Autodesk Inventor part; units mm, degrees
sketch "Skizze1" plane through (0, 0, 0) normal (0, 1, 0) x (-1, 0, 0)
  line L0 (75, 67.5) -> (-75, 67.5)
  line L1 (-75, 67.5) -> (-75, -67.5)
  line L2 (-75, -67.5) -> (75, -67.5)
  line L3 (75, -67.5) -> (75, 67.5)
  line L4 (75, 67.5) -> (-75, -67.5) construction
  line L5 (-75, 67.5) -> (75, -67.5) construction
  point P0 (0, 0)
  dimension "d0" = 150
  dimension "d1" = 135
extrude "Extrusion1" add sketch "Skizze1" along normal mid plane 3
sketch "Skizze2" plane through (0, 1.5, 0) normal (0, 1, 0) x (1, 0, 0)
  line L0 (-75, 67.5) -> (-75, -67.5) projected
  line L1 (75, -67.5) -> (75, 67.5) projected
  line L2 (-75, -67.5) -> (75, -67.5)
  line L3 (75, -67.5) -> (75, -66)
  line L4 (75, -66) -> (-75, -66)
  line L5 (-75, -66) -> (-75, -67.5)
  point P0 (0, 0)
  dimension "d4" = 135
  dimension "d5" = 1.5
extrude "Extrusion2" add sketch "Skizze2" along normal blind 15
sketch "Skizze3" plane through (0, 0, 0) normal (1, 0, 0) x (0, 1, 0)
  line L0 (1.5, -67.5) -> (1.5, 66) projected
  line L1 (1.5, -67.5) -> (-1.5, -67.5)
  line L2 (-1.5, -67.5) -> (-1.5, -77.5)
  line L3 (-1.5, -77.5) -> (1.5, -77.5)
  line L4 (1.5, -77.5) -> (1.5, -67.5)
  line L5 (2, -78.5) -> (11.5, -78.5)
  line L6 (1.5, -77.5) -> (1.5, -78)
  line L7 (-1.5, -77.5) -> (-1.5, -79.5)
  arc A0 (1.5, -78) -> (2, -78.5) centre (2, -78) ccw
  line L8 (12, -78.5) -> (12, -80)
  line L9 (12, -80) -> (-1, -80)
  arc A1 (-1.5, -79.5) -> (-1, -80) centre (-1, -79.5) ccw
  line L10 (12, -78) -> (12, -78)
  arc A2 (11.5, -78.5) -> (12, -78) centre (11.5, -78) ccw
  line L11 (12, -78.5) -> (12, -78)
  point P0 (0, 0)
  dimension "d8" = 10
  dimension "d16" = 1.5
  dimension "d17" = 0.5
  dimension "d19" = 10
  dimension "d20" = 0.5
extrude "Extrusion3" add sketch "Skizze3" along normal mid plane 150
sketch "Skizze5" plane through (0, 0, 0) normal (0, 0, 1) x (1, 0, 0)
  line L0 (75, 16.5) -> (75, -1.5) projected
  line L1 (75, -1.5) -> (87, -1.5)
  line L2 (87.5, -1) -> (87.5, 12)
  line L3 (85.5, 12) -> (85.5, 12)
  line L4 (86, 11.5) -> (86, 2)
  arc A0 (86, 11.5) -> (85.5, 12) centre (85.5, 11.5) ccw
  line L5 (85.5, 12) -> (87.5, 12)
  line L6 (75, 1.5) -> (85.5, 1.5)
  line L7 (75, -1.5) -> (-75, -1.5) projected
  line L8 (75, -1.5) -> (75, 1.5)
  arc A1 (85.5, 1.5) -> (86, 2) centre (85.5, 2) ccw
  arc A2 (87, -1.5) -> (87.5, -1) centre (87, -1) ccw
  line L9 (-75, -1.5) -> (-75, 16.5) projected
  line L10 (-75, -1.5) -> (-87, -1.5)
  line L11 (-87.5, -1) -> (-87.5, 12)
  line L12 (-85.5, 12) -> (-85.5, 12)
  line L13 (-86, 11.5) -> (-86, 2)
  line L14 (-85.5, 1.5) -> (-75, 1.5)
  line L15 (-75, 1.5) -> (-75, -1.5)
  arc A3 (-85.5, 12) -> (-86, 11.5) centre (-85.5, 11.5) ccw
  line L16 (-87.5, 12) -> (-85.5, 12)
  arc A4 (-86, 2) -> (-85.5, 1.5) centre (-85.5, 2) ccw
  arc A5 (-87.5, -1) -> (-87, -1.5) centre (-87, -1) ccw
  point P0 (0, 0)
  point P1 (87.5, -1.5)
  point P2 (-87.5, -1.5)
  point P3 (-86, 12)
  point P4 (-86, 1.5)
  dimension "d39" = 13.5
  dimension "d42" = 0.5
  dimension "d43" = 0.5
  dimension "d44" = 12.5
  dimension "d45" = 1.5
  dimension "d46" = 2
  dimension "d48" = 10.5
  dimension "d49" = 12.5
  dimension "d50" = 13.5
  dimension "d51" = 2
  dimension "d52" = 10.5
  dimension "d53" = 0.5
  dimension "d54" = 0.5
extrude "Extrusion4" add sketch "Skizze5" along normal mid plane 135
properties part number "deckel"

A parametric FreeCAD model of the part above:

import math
import FreeCAD as App
import Part
import Sketcher
from FreeCAD import Vector


def add_polygon(sketch, points):
    """Adds a closed chain of lines whose ends are joined by coincident constraints."""
    first, n = sketch.GeometryCount, len(points)
    for a, b in zip(points, points[1:] + points[:1]):
        sketch.addGeometry(Part.LineSegment(App.Vector(*a, 0), App.Vector(*b, 0)), False)
    for i in range(n):
        sketch.addConstraint(Sketcher.Constraint("Coincident", first + i, 2, first + (i + 1) % n, 1))

doc = App.newDocument("Part")
body = doc.addObject("PartDesign::Body", "Body")

# Sketch on XZ plane
sketch1 = body.newObject("Sketcher::SketchObject", "Sketch")
sketch1.AttachmentSupport = (doc.getObject("XZ_Plane"), [""])
sketch1.MapMode = "FlatFace"
add_polygon(sketch1, [(-75, -68), (-75, 68), (75, 68), (75, -68)])  # lines 0-3
sketch1.addConstraint([
    Sketcher.Constraint("Vertical", 0),
    Sketcher.Constraint("Horizontal", 1),
    Sketcher.Constraint("Vertical", 2),
    Sketcher.Constraint("Horizontal", 3),
    Sketcher.Constraint("Symmetric", 0, 2, 2, 2, -1, 1),
    Sketcher.Constraint("DistanceX", 1, 1, 1, 2, 150.0),
    Sketcher.Constraint("DistanceY", 0, 1, 0, 2, 135.0),
])
pad1 = body.newObject("PartDesign::Pad", "Pad")
pad1.Profile = sketch1
pad1.Length = 3
pad1.Midplane = True

# Sketch on XZ plane
sketch2 = body.newObject("Sketcher::SketchObject", "Sketch001")
sketch2.AttachmentSupport = (doc.getObject("XZ_Plane"), [""])
sketch2.MapMode = "FlatFace"
sketch2.AttachmentOffset = App.Placement(Vector(0, 0, -1.5), App.Rotation())
add_polygon(sketch2, [(75, 66), (-75, 66), (-75, 67.5), (75, 67.5)])  # lines 0-3
sketch2.addConstraint([
    Sketcher.Constraint("Horizontal", 0),
    Sketcher.Constraint("Vertical", 1),
    Sketcher.Constraint("Horizontal", 2),
    Sketcher.Constraint("Vertical", 3),
    Sketcher.Constraint("DistanceY", 1, 1, 1, 2, 1.5),
    Sketcher.Constraint("DistanceX", 0, 2, 0, 1, 150.0),
    Sketcher.Constraint("DistanceX", 0, 2, -1, 1, 75.0),
    Sketcher.Constraint("DistanceY", -1, 1, 0, 2, 66.0),
])
pad2 = body.newObject("PartDesign::Pad", "Pad001")
pad2.Profile = sketch2
pad2.Length = 15
pad2.Reversed = True

# Sketch on YZ plane
sketch3 = body.newObject("Sketcher::SketchObject", "Sketch002")
sketch3.AttachmentSupport = (doc.getObject("YZ_Plane"), [""])
sketch3.MapMode = "FlatFace"
sketch3.addGeometry([
    Part.LineSegment(Vector(1.5, -67.5, 0), Vector(-1.5, -67.5, 0)),  # 0
    Part.LineSegment(Vector(-1.5, -67.5, 0), Vector(-1.5, -79.5, 0)),  # 1
    Part.ArcOfCircle(Part.Circle(Vector(-1, -79.5, 0), Vector(0, 0, 1), 0.5), math.radians(180), math.radians(270)),  # 2
    Part.LineSegment(Vector(-1, -80, 0), Vector(12, -80, 0)),  # 3
    Part.LineSegment(Vector(12, -80, 0), Vector(12, -78, 0)),  # 4
    Part.ArcOfCircle(Part.Circle(Vector(11.5, -78, 0), Vector(0, 0, 1), 0.5), math.radians(-90), math.radians(0)),  # 5
    Part.LineSegment(Vector(11.5, -78.5, 0), Vector(2, -78.5, 0)),  # 6
    Part.ArcOfCircle(Part.Circle(Vector(2, -78, 0), Vector(0, 0, 1), 0.5), math.radians(180), math.radians(270)),  # 7
    Part.LineSegment(Vector(1.5, -78, 0), Vector(1.5, -67.5, 0)),  # 8
], False)
sketch3.addConstraint([
    Sketcher.Constraint("Coincident", 0, 2, 1, 1),
    Sketcher.Constraint("Tangent", 1, 2, 2, 1),
    Sketcher.Constraint("Tangent", 2, 2, 3, 1),
    Sketcher.Constraint("Coincident", 3, 2, 4, 1),
    Sketcher.Constraint("Tangent", 4, 2, 5, 2),
    Sketcher.Constraint("Tangent", 5, 1, 6, 1),
    Sketcher.Constraint("Tangent", 6, 2, 7, 2),
    Sketcher.Constraint("Tangent", 7, 1, 8, 1),
    Sketcher.Constraint("Coincident", 8, 2, 0, 1),
    Sketcher.Constraint("Horizontal", 0),
    Sketcher.Constraint("Vertical", 1),
    Sketcher.Constraint("Horizontal", 3),
    Sketcher.Constraint("Vertical", 4),
    Sketcher.Constraint("Horizontal", 6),
    Sketcher.Constraint("Vertical", 8),
    Sketcher.Constraint("Equal", 2, 5),
    Sketcher.Constraint("Equal", 5, 7),
    Sketcher.Constraint("Radius", 2, 0.5),
    Sketcher.Constraint("DistanceX", 7, 3, 3, 2, 10.0),
    Sketcher.Constraint("DistanceX", 0, 2, -1, 1, 1.5),
    Sketcher.Constraint("DistanceX", -1, 1, 7, 1, 1.5),
    Sketcher.Constraint("DistanceY", 2, 3, 5, 3, 1.5),
    Sketcher.Constraint("DistanceY", 1, 2, 1, 1, 12.0),
    Sketcher.Constraint("DistanceY", 5, 3, -1, 1, 78.0),
])
pad3 = body.newObject("PartDesign::Pad", "Pad002")
pad3.Profile = sketch3
pad3.Length = 150
pad3.Midplane = True

# Sketch on XY plane
sketch4 = body.newObject("Sketcher::SketchObject", "Sketch003")
sketch4.AttachmentSupport = (doc.getObject("XY_Plane"), [""])
sketch4.MapMode = "FlatFace"
sketch4.addGeometry([
    Part.LineSegment(Vector(85.5, 1.5, 0), Vector(75, 1.5, 0)),  # 0
    Part.LineSegment(Vector(75, 1.5, 0), Vector(75, -1.5, 0)),  # 1
    Part.LineSegment(Vector(75, -1.5, 0), Vector(87, -1.5, 0)),  # 2
    Part.ArcOfCircle(Part.Circle(Vector(87, -1, 0), Vector(0, 0, 1), 0.5), math.radians(-90), math.radians(0)),  # 3
    Part.LineSegment(Vector(87.5, -1, 0), Vector(87.5, 12, 0)),  # 4
    Part.LineSegment(Vector(87.5, 12, 0), Vector(85.5, 12, 0)),  # 5
    Part.ArcOfCircle(Part.Circle(Vector(85.5, 11.5, 0), Vector(0, 0, 1), 0.5), math.radians(0), math.radians(90)),  # 6
    Part.LineSegment(Vector(86, 11.5, 0), Vector(86, 2, 0)),  # 7
    Part.ArcOfCircle(Part.Circle(Vector(85.5, 2, 0), Vector(0, 0, 1), 0.5), math.radians(-90), math.radians(0)),  # 8
    Part.LineSegment(Vector(-87, -1.5, 0), Vector(-75, -1.5, 0)),  # 9
    Part.LineSegment(Vector(-75, -1.5, 0), Vector(-75, 1.5, 0)),  # 10
    Part.LineSegment(Vector(-75, 1.5, 0), Vector(-85.5, 1.5, 0)),  # 11
    Part.ArcOfCircle(Part.Circle(Vector(-85.5, 2, 0), Vector(0, 0, 1), 0.5), math.radians(180), math.radians(270)),  # 12
    Part.LineSegment(Vector(-86, 2, 0), Vector(-86, 11.5, 0)),  # 13
    Part.ArcOfCircle(Part.Circle(Vector(-85.5, 11.5, 0), Vector(0, 0, 1), 0.5), math.radians(90), math.radians(180)),  # 14
    Part.LineSegment(Vector(-85.5, 12, 0), Vector(-87.5, 12, 0)),  # 15
    Part.LineSegment(Vector(-87.5, 12, 0), Vector(-87.5, -1, 0)),  # 16
    Part.ArcOfCircle(Part.Circle(Vector(-87, -1, 0), Vector(0, 0, 1), 0.5), math.radians(180), math.radians(270)),  # 17
], False)
sketch4.addConstraint([
    Sketcher.Constraint("Coincident", 0, 2, 1, 1),
    Sketcher.Constraint("Coincident", 1, 2, 2, 1),
    Sketcher.Constraint("Tangent", 2, 2, 3, 1),
    Sketcher.Constraint("Tangent", 3, 2, 4, 1),
    Sketcher.Constraint("Coincident", 4, 2, 5, 1),
    Sketcher.Constraint("Tangent", 5, 2, 6, 2),
    Sketcher.Constraint("Tangent", 6, 1, 7, 1),
    Sketcher.Constraint("Tangent", 7, 2, 8, 2),
    Sketcher.Constraint("Tangent", 8, 1, 0, 1),
    Sketcher.Constraint("Coincident", 9, 2, 10, 1),
    Sketcher.Constraint("Coincident", 10, 2, 11, 1),
    Sketcher.Constraint("Tangent", 11, 2, 12, 2),
    Sketcher.Constraint("Tangent", 12, 1, 13, 1),
    Sketcher.Constraint("Tangent", 13, 2, 14, 2),
    Sketcher.Constraint("Tangent", 14, 1, 15, 1),
    Sketcher.Constraint("Coincident", 15, 2, 16, 1),
    Sketcher.Constraint("Tangent", 16, 2, 17, 1),
    Sketcher.Constraint("Tangent", 17, 2, 9, 1),
    Sketcher.Constraint("Horizontal", 0),
    Sketcher.Constraint("Vertical", 1),
    Sketcher.Constraint("Horizontal", 2),
    Sketcher.Constraint("Vertical", 4),
    Sketcher.Constraint("Horizontal", 5),
    Sketcher.Constraint("Vertical", 7),
    Sketcher.Constraint("Horizontal", 9),
    Sketcher.Constraint("Vertical", 10),
    Sketcher.Constraint("Horizontal", 11),
    Sketcher.Constraint("Vertical", 13),
    Sketcher.Constraint("Horizontal", 15),
    Sketcher.Constraint("Vertical", 16),
    Sketcher.Constraint("Equal", 3, 6),
    Sketcher.Constraint("Equal", 6, 8),
    Sketcher.Constraint("Equal", 8, 12),
    Sketcher.Constraint("Equal", 12, 14),
    Sketcher.Constraint("Equal", 14, 17),
    Sketcher.Constraint("Symmetric", 0, 2, 9, 2, -1, 1),
    Sketcher.Constraint("Symmetric", 8, 3, 12, 3, -2),
    Sketcher.Constraint("Symmetric", 3, 3, 17, 3, -2),
    Sketcher.Constraint("Horizontal", 6, 3, 14, 3),
    Sketcher.Constraint("Radius", 3, 0.5),
    Sketcher.Constraint("DistanceX", 5, 2, 5, 1, 2.0),
    Sketcher.Constraint("DistanceX", 0, 2, 0, 1, 10.5),
    Sketcher.Constraint("DistanceY", -1, 1, 8, 3, 2.0),
    Sketcher.Constraint("DistanceY", 3, 3, 6, 3, 12.5),
    Sketcher.Constraint("DistanceX", -1, 1, 3, 3, 87.0),
])
pad4 = body.newObject("PartDesign::Pad", "Pad003")
pad4.Profile = sketch4
pad4.Length = 135
pad4.Midplane = True

doc.recompute()
